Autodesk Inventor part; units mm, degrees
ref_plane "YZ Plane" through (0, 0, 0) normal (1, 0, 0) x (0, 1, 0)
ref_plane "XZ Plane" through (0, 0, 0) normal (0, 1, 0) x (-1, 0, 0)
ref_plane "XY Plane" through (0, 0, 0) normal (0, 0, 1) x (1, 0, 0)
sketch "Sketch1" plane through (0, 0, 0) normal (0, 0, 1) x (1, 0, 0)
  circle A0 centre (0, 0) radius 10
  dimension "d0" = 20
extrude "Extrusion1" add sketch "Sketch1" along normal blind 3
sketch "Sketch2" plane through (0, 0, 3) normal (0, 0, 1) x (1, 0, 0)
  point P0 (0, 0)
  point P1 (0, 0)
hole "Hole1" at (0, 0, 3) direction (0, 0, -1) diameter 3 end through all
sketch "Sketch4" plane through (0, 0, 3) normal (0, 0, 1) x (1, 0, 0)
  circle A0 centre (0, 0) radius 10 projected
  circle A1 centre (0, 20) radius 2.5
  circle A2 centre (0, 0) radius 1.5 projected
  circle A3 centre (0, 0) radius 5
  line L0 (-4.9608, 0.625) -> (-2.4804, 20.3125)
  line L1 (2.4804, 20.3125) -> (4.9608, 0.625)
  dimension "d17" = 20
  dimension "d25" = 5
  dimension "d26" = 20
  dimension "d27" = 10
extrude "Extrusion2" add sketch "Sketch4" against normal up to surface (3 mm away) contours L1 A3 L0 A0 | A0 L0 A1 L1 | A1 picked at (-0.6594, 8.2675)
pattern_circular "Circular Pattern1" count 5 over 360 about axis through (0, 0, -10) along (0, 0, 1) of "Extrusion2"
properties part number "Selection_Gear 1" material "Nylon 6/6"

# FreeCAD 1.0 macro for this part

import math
import FreeCAD as App
import Part
import Sketcher

V = App.Vector

doc = App.newDocument("Part")
body = doc.addObject("PartDesign::Body", "Body")

# Sketch on XY plane
sketch1 = body.newObject("Sketcher::SketchObject", "Sketch")
sketch1.AttachmentSupport = (doc.getObject("XY_Plane"), [""])
sketch1.MapMode = "FlatFace"
sketch1.addGeometry(Part.Circle(V(0, 0, 0), V(0, 0, 1), 10), False)
sketch1.addConstraint(Sketcher.Constraint("Coincident", 0, 3, -1, 1))
sketch1.addConstraint(Sketcher.Constraint("Diameter", 0, 20.0))
pad1 = body.newObject("PartDesign::Pad", "Pad")
pad1.Profile = sketch1
pad1.Length = 3

# Sketch on XY plane
sketch2 = body.newObject("Sketcher::SketchObject", "Sketch001")
sketch2.AttachmentSupport = (doc.getObject("XY_Plane"), [""])
sketch2.MapMode = "FlatFace"
sketch2.AttachmentOffset = App.Placement(V(0, 0, 3), App.Rotation())
sketch2.addGeometry(Part.Circle(V(0, 0, 0), V(0, 0, 1), 1.5), False)
sketch2.addConstraint(Sketcher.Constraint("Coincident", 0, 3, -1, 1))
sketch2.addConstraint(Sketcher.Constraint("Diameter", 0, 3.0))
doc.recompute()
hole = body.newObject("PartDesign::Hole", "Hole")
hole.Profile = sketch2
hole.ThreadType = "None"
hole.Diameter = 3
hole.DepthType = "ThroughAll"

# Sketch on XY plane
sketch3 = body.newObject("Sketcher::SketchObject", "Sketch002")
sketch3.AttachmentSupport = (doc.getObject("XY_Plane"), [""])
sketch3.MapMode = "FlatFace"
sketch3.AttachmentOffset = App.Placement(V(0, 0, 3), App.Rotation())
sketch3.addGeometry(Part.LineSegment(V(5, 0.6, 0), V(2.5, 20.3, 0)), False)
sketch3.addGeometry(Part.ArcOfCircle(Part.Circle(V(0, 20, 0), V(0, 0, 1), 2.5), math.radians(7), math.radians(173)), False)
sketch3.addGeometry(Part.LineSegment(V(-2.5, 20.3, 0), V(-5, 0.6, 0)), False)
sketch3.addGeometry(Part.ArcOfCircle(Part.Circle(V(0, 0, 0), V(0, 0, 1), 5), math.radians(7), math.radians(173)), False)
sketch3.addConstraint(Sketcher.Constraint("Tangent", 0, 2, 1, 1))
sketch3.addConstraint(Sketcher.Constraint("Tangent", 1, 2, 2, 1))
sketch3.addConstraint(Sketcher.Constraint("Tangent", 2, 2, 3, 2))
sketch3.addConstraint(Sketcher.Constraint("Tangent", 3, 1, 0, 1))
sketch3.addConstraint(Sketcher.Constraint("Coincident", 3, 3, -1, 1))
sketch3.addConstraint(Sketcher.Constraint("PointOnObject", 1, 3, -2))
sketch3.addConstraint(Sketcher.Constraint("Radius", 3, 5.0))
sketch3.addConstraint(Sketcher.Constraint("Radius", 1, 2.5))
sketch3.addConstraint(Sketcher.Constraint("DistanceY", -1, 1, 1, 3, 20.0))
pad2 = body.newObject("PartDesign::Pad", "Pad001")
pad2.Profile = sketch3
pad2.Length = 3
pad2.Reversed = True
doc.recompute()

polarpattern = body.newObject("PartDesign::PolarPattern", "PolarPattern")
polarpattern.Originals = [pad2]
polarpattern.Axis = (doc.getObject("Z_Axis"), [""])
polarpattern.Angle = 360
polarpattern.Occurrences = 5
body.Tip = polarpattern

doc.recompute()
